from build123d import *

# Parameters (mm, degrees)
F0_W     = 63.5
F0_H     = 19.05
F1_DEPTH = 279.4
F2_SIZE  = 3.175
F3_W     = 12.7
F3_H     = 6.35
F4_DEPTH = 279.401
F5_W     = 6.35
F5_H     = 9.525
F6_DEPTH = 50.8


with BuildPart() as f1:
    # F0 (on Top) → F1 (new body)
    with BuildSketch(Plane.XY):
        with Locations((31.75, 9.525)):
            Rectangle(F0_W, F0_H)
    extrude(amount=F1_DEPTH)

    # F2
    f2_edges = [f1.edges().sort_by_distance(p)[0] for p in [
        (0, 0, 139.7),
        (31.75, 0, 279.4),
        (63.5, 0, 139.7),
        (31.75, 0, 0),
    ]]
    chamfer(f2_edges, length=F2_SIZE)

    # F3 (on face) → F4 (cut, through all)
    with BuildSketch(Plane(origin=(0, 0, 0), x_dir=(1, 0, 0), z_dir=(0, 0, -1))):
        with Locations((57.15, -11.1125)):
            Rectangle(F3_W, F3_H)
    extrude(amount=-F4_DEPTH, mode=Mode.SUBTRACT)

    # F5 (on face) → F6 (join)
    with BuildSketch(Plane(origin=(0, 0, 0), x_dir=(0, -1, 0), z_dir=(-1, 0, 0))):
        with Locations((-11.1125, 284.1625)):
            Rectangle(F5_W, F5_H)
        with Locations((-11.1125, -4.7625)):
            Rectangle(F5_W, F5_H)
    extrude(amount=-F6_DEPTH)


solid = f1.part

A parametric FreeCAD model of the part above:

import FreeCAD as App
import Part
import Sketcher

V = App.Vector
Q = App.Units.Quantity


def edges_at(feature, points):
    """Names of the edges that pass closest to the given points."""
    edges = feature.Shape.Edges
    near = lambda p: min(range(len(edges)), key=lambda i: edges[i].distToShape(Part.Vertex(*p))[0])
    return sorted({f"Edge{near(p) + 1}" for p in points})


def add_polygon(sketch, points):
    """Adds a closed chain of lines whose ends are joined by coincident constraints."""
    first, n = sketch.GeometryCount, len(points)
    for a, b in zip(points, points[1:] + points[:1]):
        sketch.addGeometry(Part.LineSegment(App.Vector(*a, 0), App.Vector(*b, 0)), False)
    for i in range(n):
        sketch.addConstraint(Sketcher.Constraint("Coincident", first + i, 2, first + (i + 1) % n, 1))

doc = App.newDocument("Part")
body = doc.addObject("PartDesign::Body", "Body")

# Sketch on XY plane
sketch1 = body.newObject("Sketcher::SketchObject", "Sketch")
sketch1.AttachmentSupport = (doc.getObject("XY_Plane"), [""])
sketch1.MapMode = "FlatFace"
add_polygon(sketch1, [(0, 19), (0, 0), (64, 0), (64, 19)])  # lines 0-3
sketch1.addConstraint(Sketcher.Constraint("Vertical", 0))
sketch1.addConstraint(Sketcher.Constraint("Horizontal", 1))
sketch1.addConstraint(Sketcher.Constraint("Vertical", 2))
sketch1.addConstraint(Sketcher.Constraint("Horizontal", 3))
sketch1.addConstraint(Sketcher.Constraint("Coincident", 0, 2, -1, 1))
sketch1.addConstraint(Sketcher.Constraint("DistanceX", 1, 1, 1, 2, Q("2.5 in")))
sketch1.addConstraint(Sketcher.Constraint("DistanceY", 0, 2, 0, 1, Q("0.75 in")))
pad1 = body.newObject("PartDesign::Pad", "Pad")
pad1.Profile = sketch1
pad1.Length = Q("11 in")
doc.recompute()

chamfer = body.newObject("PartDesign::Chamfer", "Chamfer")
chamfer.Base = (pad1, edges_at(pad1, [
    (0, 0, 139.7),
    (31.75, 0, 279.4),
    (63.5, 0, 139.7),
    (31.75, 0, 0),
]))
chamfer.Size = Q("0.125 in")

# Sketch on XY plane
sketch2 = body.newObject("Sketcher::SketchObject", "Sketch001")
sketch2.AttachmentSupport = (doc.getObject("XY_Plane"), [""])
sketch2.MapMode = "FlatFace"
add_polygon(sketch2, [(51, 8), (51, 14), (64, 14), (64, 8)])  # lines 0-3
sketch2.addConstraint(Sketcher.Constraint("Vertical", 0))
sketch2.addConstraint(Sketcher.Constraint("Horizontal", 1))
sketch2.addConstraint(Sketcher.Constraint("Vertical", 2))
sketch2.addConstraint(Sketcher.Constraint("Horizontal", 3))
sketch2.addConstraint(Sketcher.Constraint("DistanceX", 1, 1, 1, 2, Q("0.5 in")))
sketch2.addConstraint(Sketcher.Constraint("DistanceX", -1, 1, 0, 2, Q("2 in")))
sketch2.addConstraint(Sketcher.Constraint("DistanceY", 0, 1, 0, 2, Q("0.25 in")))
sketch2.addConstraint(Sketcher.Constraint("DistanceY", -1, 1, 0, 2, Q("0.5625 in")))
pocket1 = body.newObject("PartDesign::Pocket", "Pocket")
pocket1.Profile = sketch2
pocket1.Type = "ThroughAll"
pocket1.Reversed = True

# Sketch on YZ plane
sketch3 = body.newObject("Sketcher::SketchObject", "Sketch002")
sketch3.AttachmentSupport = (doc.getObject("YZ_Plane"), [""])
sketch3.MapMode = "FlatFace"
add_polygon(sketch3, [(14, 289), (14, 279), (8, 279), (8, 289)])  # lines 0-3
add_polygon(sketch3, [(14, 0), (14, -10), (8, -10), (8, 0)])  # lines 4-7
sketch3.addConstraint(Sketcher.Constraint("Vertical", 0))
sketch3.addConstraint(Sketcher.Constraint("Horizontal", 1))
sketch3.addConstraint(Sketcher.Constraint("Vertical", 2))
sketch3.addConstraint(Sketcher.Constraint("Horizontal", 3))
sketch3.addConstraint(Sketcher.Constraint("Vertical", 4))
sketch3.addConstraint(Sketcher.Constraint("Horizontal", 5))
sketch3.addConstraint(Sketcher.Constraint("Vertical", 6))
sketch3.addConstraint(Sketcher.Constraint("Horizontal", 7))
sketch3.addConstraint(Sketcher.Constraint("PointOnObject", 6, 2, -1))
sketch3.addConstraint(Sketcher.Constraint("Vertical", 3, 2, 4, 2))
sketch3.addConstraint(Sketcher.Constraint("Vertical", 2, 2, 5, 2))
sketch3.addConstraint(Sketcher.Constraint("Equal", 2, 4))
sketch3.addConstraint(Sketcher.Constraint("DistanceY", -1, 1, 0, 2, Q("11 in")))
sketch3.addConstraint(Sketcher.Constraint("DistanceX", 1, 2, 1, 1, Q("0.25 in")))
sketch3.addConstraint(Sketcher.Constraint("DistanceY", 0, 2, 0, 1, Q("0.375 in")))
sketch3.addConstraint(Sketcher.Constraint("DistanceX", -1, 1, 0, 2, Q("0.5625 in")))
pad2 = body.newObject("PartDesign::Pad", "Pad001")
pad2.Profile = sketch3
pad2.Length = Q("2 in")

doc.recompute()
